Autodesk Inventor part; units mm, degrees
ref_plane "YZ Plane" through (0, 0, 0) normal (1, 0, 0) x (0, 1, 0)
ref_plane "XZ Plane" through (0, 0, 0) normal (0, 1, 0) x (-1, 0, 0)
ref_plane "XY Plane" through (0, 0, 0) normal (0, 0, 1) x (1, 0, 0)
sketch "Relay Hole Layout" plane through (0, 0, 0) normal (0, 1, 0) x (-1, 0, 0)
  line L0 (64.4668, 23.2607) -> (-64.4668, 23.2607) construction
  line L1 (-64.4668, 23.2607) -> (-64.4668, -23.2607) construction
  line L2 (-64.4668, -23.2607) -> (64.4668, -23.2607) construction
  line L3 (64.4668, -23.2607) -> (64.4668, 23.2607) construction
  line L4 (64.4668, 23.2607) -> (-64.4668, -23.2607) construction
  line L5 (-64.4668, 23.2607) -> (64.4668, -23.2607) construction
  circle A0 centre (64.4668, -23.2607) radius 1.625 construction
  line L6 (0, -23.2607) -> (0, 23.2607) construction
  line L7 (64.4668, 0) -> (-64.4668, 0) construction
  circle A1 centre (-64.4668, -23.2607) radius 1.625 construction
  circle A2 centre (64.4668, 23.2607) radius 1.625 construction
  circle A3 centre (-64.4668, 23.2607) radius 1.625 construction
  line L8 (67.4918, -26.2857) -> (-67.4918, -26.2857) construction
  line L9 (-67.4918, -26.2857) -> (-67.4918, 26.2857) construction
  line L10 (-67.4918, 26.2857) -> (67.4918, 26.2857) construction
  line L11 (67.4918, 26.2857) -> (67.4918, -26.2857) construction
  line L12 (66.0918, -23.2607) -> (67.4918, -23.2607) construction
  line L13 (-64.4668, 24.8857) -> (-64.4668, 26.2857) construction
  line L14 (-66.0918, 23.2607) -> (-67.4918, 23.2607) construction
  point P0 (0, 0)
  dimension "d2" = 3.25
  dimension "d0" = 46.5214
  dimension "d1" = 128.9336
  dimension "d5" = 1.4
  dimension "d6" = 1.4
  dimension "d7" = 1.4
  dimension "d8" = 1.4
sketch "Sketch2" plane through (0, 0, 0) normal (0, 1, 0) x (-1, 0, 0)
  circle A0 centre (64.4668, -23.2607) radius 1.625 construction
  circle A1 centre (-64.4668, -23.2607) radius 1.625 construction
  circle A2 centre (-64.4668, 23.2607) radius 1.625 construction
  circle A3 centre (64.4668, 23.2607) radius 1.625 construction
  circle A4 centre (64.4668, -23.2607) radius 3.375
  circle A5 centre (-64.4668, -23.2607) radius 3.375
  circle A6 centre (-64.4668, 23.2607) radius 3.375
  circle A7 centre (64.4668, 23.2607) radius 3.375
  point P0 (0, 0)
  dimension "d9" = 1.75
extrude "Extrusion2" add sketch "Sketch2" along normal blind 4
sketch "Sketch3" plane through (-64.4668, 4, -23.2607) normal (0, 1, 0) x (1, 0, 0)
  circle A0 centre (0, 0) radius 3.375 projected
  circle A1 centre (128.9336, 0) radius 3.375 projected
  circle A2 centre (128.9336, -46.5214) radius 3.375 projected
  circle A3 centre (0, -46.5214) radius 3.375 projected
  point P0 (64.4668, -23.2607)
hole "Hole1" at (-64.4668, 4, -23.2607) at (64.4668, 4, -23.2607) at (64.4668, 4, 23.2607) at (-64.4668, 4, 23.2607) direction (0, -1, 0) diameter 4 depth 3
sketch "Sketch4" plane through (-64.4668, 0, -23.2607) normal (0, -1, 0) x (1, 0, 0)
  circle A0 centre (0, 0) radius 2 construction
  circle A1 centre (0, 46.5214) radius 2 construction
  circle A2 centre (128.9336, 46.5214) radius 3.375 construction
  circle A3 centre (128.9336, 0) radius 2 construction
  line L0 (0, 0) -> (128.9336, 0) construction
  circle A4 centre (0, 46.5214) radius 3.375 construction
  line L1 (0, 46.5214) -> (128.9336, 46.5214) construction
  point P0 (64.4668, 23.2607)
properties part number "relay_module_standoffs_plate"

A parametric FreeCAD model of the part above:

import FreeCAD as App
import Part
import Sketcher
from FreeCAD import Vector
Q = App.Units.Quantity

doc = App.newDocument("Part")
body = doc.addObject("PartDesign::Body", "Body")
body.AllowCompound = True

sketch1 = body.newObject("Sketcher::SketchObject", "Sketch")
sketch1.AttachmentSupport = (doc.getObject("XZ_Plane"), [""])
sketch1.MapMode = "FlatFace"
sketch1.addGeometry([
    Part.Circle(Vector(-64.4668, -23.2607, 0), Vector(0, 0, 1), 3.375),
    Part.Circle(Vector(64.4668, -23.2607, 0), Vector(0, 0, 1), 3.375),
    Part.Circle(Vector(64.4668, 23.2607, 0), Vector(0, 0, 1), 3.375),
    Part.Circle(Vector(-64.4668, 23.2607, 0), Vector(0, 0, 1), 3.375),
], False)
sketch1.addConstraint([
    Sketcher.Constraint("Equal", 0, 1),
    Sketcher.Constraint("Equal", 1, 2),
    Sketcher.Constraint("Equal", 2, 3),
    Sketcher.Constraint("Symmetric", 0, 3, 2, 3, -1, 1),
    Sketcher.Constraint("Symmetric", 1, 3, 3, 3, -1, 1),
    Sketcher.Constraint("Symmetric", 0, 3, 1, 3, -2),
    Sketcher.Constraint("Diameter", 0, Q("6.75 mm")),
    Sketcher.Constraint("DistanceX", 0, 3, -1, 1, Q("64.4668 mm")),
    Sketcher.Constraint("DistanceY", 0, 3, -1, 1, Q("23.2607 mm")),
])
pad1 = body.newObject("PartDesign::Pad", "Pad")
pad1.Profile = sketch1
pad1.Length = 4
pad1.Reversed = True

sketch2 = body.newObject("Sketcher::SketchObject", "Sketch001")
sketch2.AttachmentSupport = (doc.getObject("XZ_Plane"), [""])
sketch2.MapMode = "FlatFace"
sketch2.AttachmentOffset = App.Placement(Vector(0, 0, -4), App.Rotation())
sketch2.addGeometry([
    Part.Circle(Vector(-64.4668, -23.2607, 0), Vector(0, 0, 1), 2),
    Part.Circle(Vector(64.4668, -23.2607, 0), Vector(0, 0, 1), 2),
    Part.Circle(Vector(64.4668, 23.2607, 0), Vector(0, 0, 1), 2),
    Part.Circle(Vector(-64.4668, 23.2607, 0), Vector(0, 0, 1), 2),
], False)
sketch2.addConstraint([
    Sketcher.Constraint("Equal", 0, 1),
    Sketcher.Constraint("Equal", 1, 2),
    Sketcher.Constraint("Equal", 2, 3),
    Sketcher.Constraint("Symmetric", 0, 3, 2, 3, -1, 1),
    Sketcher.Constraint("Symmetric", 1, 3, 3, 3, -1, 1),
    Sketcher.Constraint("Symmetric", 0, 3, 1, 3, -2),
    Sketcher.Constraint("Diameter", 0, Q("4 mm")),
    Sketcher.Constraint("DistanceX", 0, 3, -1, 1, Q("64.4668 mm")),
    Sketcher.Constraint("DistanceY", 0, 3, -1, 1, Q("23.2607 mm")),
])
doc.recompute()
hole = body.newObject("PartDesign::Hole", "Hole")
hole.Profile = sketch2
hole.ThreadType = "None"
hole.Diameter = 4
hole.DepthType = "Dimension"
hole.Depth = 3
hole.DrillPoint = "Flat"
hole.Reversed = True

doc.recompute()
